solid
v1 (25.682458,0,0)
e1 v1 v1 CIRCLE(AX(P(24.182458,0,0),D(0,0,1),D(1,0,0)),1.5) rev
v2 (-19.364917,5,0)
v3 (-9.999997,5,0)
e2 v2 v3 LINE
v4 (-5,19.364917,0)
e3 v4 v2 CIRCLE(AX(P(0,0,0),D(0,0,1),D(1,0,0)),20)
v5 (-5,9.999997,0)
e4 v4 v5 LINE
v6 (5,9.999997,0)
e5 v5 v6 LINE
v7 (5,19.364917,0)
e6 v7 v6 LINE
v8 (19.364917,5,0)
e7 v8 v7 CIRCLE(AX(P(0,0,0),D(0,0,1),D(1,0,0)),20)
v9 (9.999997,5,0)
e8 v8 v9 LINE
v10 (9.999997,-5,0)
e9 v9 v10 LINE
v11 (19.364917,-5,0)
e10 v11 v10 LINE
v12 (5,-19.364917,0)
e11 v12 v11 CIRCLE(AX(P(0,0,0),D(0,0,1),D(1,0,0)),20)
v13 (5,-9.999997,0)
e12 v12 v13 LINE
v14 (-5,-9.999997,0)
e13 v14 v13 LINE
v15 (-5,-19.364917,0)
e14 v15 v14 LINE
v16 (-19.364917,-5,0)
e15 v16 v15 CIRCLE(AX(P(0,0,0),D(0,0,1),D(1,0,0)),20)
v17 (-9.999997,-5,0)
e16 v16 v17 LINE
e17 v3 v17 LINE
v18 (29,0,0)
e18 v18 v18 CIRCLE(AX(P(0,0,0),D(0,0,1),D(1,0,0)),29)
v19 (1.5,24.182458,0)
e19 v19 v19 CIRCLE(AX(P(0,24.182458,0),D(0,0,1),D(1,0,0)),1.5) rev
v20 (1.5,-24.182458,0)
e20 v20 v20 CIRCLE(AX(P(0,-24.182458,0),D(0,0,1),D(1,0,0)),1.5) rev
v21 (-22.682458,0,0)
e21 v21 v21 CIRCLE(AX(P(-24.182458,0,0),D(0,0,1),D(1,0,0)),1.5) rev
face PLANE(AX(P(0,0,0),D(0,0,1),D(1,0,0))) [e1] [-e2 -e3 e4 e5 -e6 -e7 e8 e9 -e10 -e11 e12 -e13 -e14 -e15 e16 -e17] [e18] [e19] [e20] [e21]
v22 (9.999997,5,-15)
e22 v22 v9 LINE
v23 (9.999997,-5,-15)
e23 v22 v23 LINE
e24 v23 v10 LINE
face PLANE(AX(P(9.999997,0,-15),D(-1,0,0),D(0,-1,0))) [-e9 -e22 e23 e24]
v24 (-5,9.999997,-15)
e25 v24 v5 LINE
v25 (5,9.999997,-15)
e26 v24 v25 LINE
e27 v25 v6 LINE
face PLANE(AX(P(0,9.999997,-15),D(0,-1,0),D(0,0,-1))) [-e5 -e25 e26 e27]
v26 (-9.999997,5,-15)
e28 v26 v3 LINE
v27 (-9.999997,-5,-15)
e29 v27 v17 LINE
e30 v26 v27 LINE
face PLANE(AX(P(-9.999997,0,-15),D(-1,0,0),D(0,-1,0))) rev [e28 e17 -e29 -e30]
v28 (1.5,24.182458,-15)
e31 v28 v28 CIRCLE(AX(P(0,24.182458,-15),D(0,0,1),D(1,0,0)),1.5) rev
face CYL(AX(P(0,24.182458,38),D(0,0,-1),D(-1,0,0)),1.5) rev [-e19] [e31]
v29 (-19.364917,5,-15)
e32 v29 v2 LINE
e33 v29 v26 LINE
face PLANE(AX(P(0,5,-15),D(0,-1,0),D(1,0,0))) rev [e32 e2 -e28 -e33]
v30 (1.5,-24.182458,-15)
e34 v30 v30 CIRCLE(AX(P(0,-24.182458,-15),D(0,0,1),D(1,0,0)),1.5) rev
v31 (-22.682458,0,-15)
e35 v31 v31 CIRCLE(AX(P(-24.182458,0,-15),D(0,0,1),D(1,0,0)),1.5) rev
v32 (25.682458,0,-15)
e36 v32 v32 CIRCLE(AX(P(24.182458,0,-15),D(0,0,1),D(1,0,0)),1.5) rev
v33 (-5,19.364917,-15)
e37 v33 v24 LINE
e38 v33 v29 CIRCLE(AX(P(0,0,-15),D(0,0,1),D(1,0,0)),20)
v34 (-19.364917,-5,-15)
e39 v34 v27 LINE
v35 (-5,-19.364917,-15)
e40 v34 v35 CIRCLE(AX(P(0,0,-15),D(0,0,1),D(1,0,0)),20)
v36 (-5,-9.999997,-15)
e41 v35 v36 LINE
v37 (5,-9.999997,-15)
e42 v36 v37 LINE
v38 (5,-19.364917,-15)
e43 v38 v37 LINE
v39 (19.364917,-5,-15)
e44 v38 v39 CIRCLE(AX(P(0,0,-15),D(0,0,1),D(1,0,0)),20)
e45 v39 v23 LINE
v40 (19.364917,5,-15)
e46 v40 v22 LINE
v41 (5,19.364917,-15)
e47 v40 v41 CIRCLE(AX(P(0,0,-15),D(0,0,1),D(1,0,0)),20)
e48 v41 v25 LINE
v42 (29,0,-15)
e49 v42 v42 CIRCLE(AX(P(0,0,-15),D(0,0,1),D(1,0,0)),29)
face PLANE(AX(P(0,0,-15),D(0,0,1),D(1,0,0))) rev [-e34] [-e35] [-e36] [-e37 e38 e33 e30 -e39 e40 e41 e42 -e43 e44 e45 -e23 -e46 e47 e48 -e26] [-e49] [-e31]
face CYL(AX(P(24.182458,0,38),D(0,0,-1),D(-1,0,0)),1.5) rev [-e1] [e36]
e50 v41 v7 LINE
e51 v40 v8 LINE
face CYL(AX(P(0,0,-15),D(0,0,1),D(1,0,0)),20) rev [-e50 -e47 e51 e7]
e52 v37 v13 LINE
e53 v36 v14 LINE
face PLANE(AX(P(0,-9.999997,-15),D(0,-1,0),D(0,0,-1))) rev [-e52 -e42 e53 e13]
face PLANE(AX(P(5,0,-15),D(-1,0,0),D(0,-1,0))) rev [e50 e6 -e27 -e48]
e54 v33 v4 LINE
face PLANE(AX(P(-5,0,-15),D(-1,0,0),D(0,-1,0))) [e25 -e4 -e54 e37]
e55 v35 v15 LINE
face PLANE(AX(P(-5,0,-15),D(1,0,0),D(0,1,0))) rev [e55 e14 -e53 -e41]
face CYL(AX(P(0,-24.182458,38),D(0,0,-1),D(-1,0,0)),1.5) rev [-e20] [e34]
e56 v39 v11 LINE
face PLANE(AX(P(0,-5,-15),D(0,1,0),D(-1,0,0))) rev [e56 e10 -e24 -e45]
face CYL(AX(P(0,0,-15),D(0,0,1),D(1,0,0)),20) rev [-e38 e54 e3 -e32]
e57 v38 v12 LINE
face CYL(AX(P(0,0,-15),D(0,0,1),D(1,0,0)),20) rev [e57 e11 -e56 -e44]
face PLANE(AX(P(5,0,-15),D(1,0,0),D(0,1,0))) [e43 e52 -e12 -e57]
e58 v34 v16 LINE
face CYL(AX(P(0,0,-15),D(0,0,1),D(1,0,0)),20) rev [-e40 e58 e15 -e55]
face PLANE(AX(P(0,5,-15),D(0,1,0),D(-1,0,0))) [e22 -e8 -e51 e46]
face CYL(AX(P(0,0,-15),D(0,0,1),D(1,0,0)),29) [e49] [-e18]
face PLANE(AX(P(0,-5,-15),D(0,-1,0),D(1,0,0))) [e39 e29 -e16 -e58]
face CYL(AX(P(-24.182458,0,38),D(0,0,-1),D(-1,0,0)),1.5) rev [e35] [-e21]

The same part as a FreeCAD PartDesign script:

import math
import FreeCAD as App
import Part
import Sketcher
Q = App.Units.Quantity

doc = App.newDocument("Part")
params = doc.addObject("Spreadsheet::Sheet", "Params")
for row, (alias, value) in enumerate([
    ("sketch1_diameter", "58 mm"),
    ("sketch1_diameter2", "40 mm"),
    ("pad1_length", "15 mm"),
    ("sketch2_radius", "20 mm"),
    ("sketch2_width", "10 mm"),
    ("pad2_length", "15 mm"),
    ("sketch3_diameter", "3 mm"),
], start=1):
    params.set(f"A{row}", alias)
    params.set(f"B{row}", "=" + value)
    params.setAlias(f"B{row}", alias)

body = doc.addObject("PartDesign::Body", "Body")

# Sketch on XY plane
sketch1 = body.newObject("Sketcher::SketchObject", "Sketch")
sketch1.AttachmentSupport = (doc.getObject("XY_Plane"), [""])
sketch1.MapMode = "FlatFace"
sketch1.addGeometry([
    Part.Circle(App.Vector(0, 0, 0), App.Vector(0, 0, 1), 29),
    Part.Circle(App.Vector(0, 0, 0), App.Vector(0, 0, 1), 20),
], False)
sketch1.addConstraint([
    Sketcher.Constraint("Coincident", 0, 3, -1, 1),
    Sketcher.Constraint("Coincident", 1, 3, -1, 1),
    Sketcher.Constraint("Diameter", 0, Q("58 mm")),
    Sketcher.Constraint("Diameter", 1, Q("40 mm")),
])
sketch1.setExpression("Constraints[2]", "Params.sketch1_diameter")
sketch1.setExpression("Constraints[3]", "Params.sketch1_diameter2")
pad1 = body.newObject("PartDesign::Pad", "Pad")
pad1.Profile = sketch1
pad1.setExpression("Length", "Params.pad1_length")
pad1.Reversed = True

# Sketch on XY plane
sketch2 = body.newObject("Sketcher::SketchObject", "Sketch001")
sketch2.AttachmentSupport = (doc.getObject("XY_Plane"), [""])
sketch2.MapMode = "FlatFace"
sketch2.addGeometry([
    Part.ArcOfCircle(Part.Circle(App.Vector(0, 0, 0), App.Vector(0, 0, 1), 20), math.radians(0), math.radians(14.48)),  # 0
    Part.LineSegment(App.Vector(19, 5, 0), App.Vector(10, 5, 0)),  # 1
    Part.LineSegment(App.Vector(10, 5, 0), App.Vector(10, -5, 0)),  # 2
    Part.LineSegment(App.Vector(10, -5, 0), App.Vector(19, -5, 0)),  # 3
    Part.ArcOfCircle(Part.Circle(App.Vector(0, 0, 0), App.Vector(0, 0, 1), 20), math.radians(-14.48), math.radians(0)),  # 4
    Part.ArcOfCircle(Part.Circle(App.Vector(0, 0, 0), App.Vector(0, 0, 1), 20), math.radians(76), math.radians(104)),  # 5
    Part.LineSegment(App.Vector(-5, 19, 0), App.Vector(-5, 10, 0)),  # 6
    Part.LineSegment(App.Vector(-5, 10, 0), App.Vector(5, 10, 0)),  # 7
    Part.LineSegment(App.Vector(5, 10, 0), App.Vector(5, 19, 0)),  # 8
    Part.LineSegment(App.Vector(-10, -5, 0), App.Vector(-10, 5, 0)),  # 9
    Part.LineSegment(App.Vector(-10, 5, 0), App.Vector(-19, 5, 0)),  # 10
    Part.ArcOfCircle(Part.Circle(App.Vector(0, 0, 0), App.Vector(0, 0, 1), 20), math.radians(166), math.radians(194)),  # 11
    Part.LineSegment(App.Vector(-19, -5, 0), App.Vector(-10, -5, 0)),  # 12
    Part.LineSegment(App.Vector(-5, -10, 0), App.Vector(-5, -19, 0)),  # 13
    Part.ArcOfCircle(Part.Circle(App.Vector(0, 0, 0), App.Vector(0, 0, 1), 20), math.radians(-104), math.radians(-76)),  # 14
    Part.LineSegment(App.Vector(5, -19, 0), App.Vector(5, -10, 0)),  # 15
    Part.LineSegment(App.Vector(5, -10, 0), App.Vector(-5, -10, 0)),  # 16
], False)
sketch2.addConstraint([
    Sketcher.Constraint("Coincident", 0, 2, 1, 1),
    Sketcher.Constraint("Coincident", 1, 2, 2, 1),
    Sketcher.Constraint("Coincident", 2, 2, 3, 1),
    Sketcher.Constraint("Coincident", 3, 2, 4, 1),
    Sketcher.Constraint("Tangent", 4, 2, 0, 1),
    Sketcher.Constraint("Coincident", 5, 2, 6, 1),
    Sketcher.Constraint("Coincident", 6, 2, 7, 1),
    Sketcher.Constraint("Coincident", 7, 2, 8, 1),
    Sketcher.Constraint("Coincident", 8, 2, 5, 1),
    Sketcher.Constraint("Coincident", 9, 2, 10, 1),
    Sketcher.Constraint("Coincident", 10, 2, 11, 1),
    Sketcher.Constraint("Coincident", 11, 2, 12, 1),
    Sketcher.Constraint("Coincident", 12, 2, 9, 1),
    Sketcher.Constraint("Coincident", 13, 2, 14, 1),
    Sketcher.Constraint("Coincident", 14, 2, 15, 1),
    Sketcher.Constraint("Coincident", 15, 2, 16, 1),
    Sketcher.Constraint("Coincident", 16, 2, 13, 1),
    Sketcher.Constraint("Horizontal", 1),
    Sketcher.Constraint("Vertical", 2),
    Sketcher.Constraint("Horizontal", 3),
    Sketcher.Constraint("Vertical", 6),
    Sketcher.Constraint("Horizontal", 7),
    Sketcher.Constraint("Vertical", 8),
    Sketcher.Constraint("Vertical", 9),
    Sketcher.Constraint("Horizontal", 10),
    Sketcher.Constraint("Horizontal", 12),
    Sketcher.Constraint("Vertical", 13),
    Sketcher.Constraint("Vertical", 15),
    Sketcher.Constraint("Horizontal", 16),
    Sketcher.Constraint("Coincident", 0, 3, -1, 1),
    Sketcher.Constraint("Coincident", 5, 3, -1, 1),
    Sketcher.Constraint("Coincident", 11, 3, -1, 1),
    Sketcher.Constraint("Coincident", 14, 3, -1, 1),
    Sketcher.Constraint("Equal", 0, 4),
    Sketcher.Constraint("Equal", 4, 5),
    Sketcher.Constraint("Equal", 5, 11),
    Sketcher.Constraint("Equal", 11, 14),
    Sketcher.Constraint("Symmetric", 2, 2, 9, 2, -1, 1),
    Sketcher.Constraint("Symmetric", 6, 2, 15, 2, -1, 1),
    Sketcher.Constraint("PointOnObject", 4, 2, -1),
    Sketcher.Constraint("Horizontal", 5, 2, 8, 2),
    Sketcher.Constraint("Horizontal", 1, 2, 9, 2),
    Sketcher.Constraint("Horizontal", 3, 2, 11, 2),
    Sketcher.Constraint("Horizontal", 13, 2, 14, 2),
    Sketcher.Constraint("Equal", 16, 2),
    Sketcher.Constraint("Equal", 12, 6),
    Sketcher.Constraint("Radius", 0, Q("20 mm")),
    Sketcher.Constraint("DistanceX", 7, 1, 7, 2, Q("10 mm")),
    Sketcher.Constraint("DistanceX", 1, 2, 1, 1, Q("9.36492 mm")),
])
sketch2.setExpression("Constraints[46]", "Params.sketch2_radius")
sketch2.setExpression("Constraints[47]", "Params.sketch2_width")
pad2 = body.newObject("PartDesign::Pad", "Pad001")
pad2.Profile = sketch2
pad2.setExpression("Length", "Params.pad2_length")
pad2.Reversed = True

# Sketch on XY plane
sketch3 = body.newObject("Sketcher::SketchObject", "Sketch002")
sketch3.AttachmentSupport = (doc.getObject("XY_Plane"), [""])
sketch3.MapMode = "FlatFace"
sketch3.addGeometry([
    Part.Circle(App.Vector(0, 24.2, 0), App.Vector(0, 0, 1), 1.5),
    Part.Circle(App.Vector(24.2, 0, 0), App.Vector(0, 0, 1), 1.5),
    Part.Circle(App.Vector(0, -24.2, 0), App.Vector(0, 0, 1), 1.5),
    Part.Circle(App.Vector(-24.2, 0, 0), App.Vector(0, 0, 1), 1.5),
], False)
sketch3.addConstraint([
    Sketcher.Constraint("Equal", 0, 1),
    Sketcher.Constraint("Equal", 1, 2),
    Sketcher.Constraint("Equal", 2, 3),
    Sketcher.Constraint("Symmetric", 0, 3, 2, 3, -1, 1),
    Sketcher.Constraint("Symmetric", 1, 3, 3, 3, -1, 1),
    Sketcher.Constraint("PointOnObject", 0, 3, -2),
    Sketcher.Constraint("PointOnObject", 1, 3, -1),
    Sketcher.Constraint("Diameter", 0, Q("3 mm")),
    Sketcher.Constraint("DistanceY", -1, 1, 0, 3, Q("24.182458 mm")),
    Sketcher.Constraint("DistanceX", -1, 1, 1, 3, Q("24.182458 mm")),
])
sketch3.setExpression("Constraints[7]", "Params.sketch3_diameter")
pocket1 = body.newObject("PartDesign::Pocket", "Pocket")
pocket1.Profile = sketch3
pocket1.Type = "ThroughAll"
pocket1.Midplane = True

doc.recompute()
